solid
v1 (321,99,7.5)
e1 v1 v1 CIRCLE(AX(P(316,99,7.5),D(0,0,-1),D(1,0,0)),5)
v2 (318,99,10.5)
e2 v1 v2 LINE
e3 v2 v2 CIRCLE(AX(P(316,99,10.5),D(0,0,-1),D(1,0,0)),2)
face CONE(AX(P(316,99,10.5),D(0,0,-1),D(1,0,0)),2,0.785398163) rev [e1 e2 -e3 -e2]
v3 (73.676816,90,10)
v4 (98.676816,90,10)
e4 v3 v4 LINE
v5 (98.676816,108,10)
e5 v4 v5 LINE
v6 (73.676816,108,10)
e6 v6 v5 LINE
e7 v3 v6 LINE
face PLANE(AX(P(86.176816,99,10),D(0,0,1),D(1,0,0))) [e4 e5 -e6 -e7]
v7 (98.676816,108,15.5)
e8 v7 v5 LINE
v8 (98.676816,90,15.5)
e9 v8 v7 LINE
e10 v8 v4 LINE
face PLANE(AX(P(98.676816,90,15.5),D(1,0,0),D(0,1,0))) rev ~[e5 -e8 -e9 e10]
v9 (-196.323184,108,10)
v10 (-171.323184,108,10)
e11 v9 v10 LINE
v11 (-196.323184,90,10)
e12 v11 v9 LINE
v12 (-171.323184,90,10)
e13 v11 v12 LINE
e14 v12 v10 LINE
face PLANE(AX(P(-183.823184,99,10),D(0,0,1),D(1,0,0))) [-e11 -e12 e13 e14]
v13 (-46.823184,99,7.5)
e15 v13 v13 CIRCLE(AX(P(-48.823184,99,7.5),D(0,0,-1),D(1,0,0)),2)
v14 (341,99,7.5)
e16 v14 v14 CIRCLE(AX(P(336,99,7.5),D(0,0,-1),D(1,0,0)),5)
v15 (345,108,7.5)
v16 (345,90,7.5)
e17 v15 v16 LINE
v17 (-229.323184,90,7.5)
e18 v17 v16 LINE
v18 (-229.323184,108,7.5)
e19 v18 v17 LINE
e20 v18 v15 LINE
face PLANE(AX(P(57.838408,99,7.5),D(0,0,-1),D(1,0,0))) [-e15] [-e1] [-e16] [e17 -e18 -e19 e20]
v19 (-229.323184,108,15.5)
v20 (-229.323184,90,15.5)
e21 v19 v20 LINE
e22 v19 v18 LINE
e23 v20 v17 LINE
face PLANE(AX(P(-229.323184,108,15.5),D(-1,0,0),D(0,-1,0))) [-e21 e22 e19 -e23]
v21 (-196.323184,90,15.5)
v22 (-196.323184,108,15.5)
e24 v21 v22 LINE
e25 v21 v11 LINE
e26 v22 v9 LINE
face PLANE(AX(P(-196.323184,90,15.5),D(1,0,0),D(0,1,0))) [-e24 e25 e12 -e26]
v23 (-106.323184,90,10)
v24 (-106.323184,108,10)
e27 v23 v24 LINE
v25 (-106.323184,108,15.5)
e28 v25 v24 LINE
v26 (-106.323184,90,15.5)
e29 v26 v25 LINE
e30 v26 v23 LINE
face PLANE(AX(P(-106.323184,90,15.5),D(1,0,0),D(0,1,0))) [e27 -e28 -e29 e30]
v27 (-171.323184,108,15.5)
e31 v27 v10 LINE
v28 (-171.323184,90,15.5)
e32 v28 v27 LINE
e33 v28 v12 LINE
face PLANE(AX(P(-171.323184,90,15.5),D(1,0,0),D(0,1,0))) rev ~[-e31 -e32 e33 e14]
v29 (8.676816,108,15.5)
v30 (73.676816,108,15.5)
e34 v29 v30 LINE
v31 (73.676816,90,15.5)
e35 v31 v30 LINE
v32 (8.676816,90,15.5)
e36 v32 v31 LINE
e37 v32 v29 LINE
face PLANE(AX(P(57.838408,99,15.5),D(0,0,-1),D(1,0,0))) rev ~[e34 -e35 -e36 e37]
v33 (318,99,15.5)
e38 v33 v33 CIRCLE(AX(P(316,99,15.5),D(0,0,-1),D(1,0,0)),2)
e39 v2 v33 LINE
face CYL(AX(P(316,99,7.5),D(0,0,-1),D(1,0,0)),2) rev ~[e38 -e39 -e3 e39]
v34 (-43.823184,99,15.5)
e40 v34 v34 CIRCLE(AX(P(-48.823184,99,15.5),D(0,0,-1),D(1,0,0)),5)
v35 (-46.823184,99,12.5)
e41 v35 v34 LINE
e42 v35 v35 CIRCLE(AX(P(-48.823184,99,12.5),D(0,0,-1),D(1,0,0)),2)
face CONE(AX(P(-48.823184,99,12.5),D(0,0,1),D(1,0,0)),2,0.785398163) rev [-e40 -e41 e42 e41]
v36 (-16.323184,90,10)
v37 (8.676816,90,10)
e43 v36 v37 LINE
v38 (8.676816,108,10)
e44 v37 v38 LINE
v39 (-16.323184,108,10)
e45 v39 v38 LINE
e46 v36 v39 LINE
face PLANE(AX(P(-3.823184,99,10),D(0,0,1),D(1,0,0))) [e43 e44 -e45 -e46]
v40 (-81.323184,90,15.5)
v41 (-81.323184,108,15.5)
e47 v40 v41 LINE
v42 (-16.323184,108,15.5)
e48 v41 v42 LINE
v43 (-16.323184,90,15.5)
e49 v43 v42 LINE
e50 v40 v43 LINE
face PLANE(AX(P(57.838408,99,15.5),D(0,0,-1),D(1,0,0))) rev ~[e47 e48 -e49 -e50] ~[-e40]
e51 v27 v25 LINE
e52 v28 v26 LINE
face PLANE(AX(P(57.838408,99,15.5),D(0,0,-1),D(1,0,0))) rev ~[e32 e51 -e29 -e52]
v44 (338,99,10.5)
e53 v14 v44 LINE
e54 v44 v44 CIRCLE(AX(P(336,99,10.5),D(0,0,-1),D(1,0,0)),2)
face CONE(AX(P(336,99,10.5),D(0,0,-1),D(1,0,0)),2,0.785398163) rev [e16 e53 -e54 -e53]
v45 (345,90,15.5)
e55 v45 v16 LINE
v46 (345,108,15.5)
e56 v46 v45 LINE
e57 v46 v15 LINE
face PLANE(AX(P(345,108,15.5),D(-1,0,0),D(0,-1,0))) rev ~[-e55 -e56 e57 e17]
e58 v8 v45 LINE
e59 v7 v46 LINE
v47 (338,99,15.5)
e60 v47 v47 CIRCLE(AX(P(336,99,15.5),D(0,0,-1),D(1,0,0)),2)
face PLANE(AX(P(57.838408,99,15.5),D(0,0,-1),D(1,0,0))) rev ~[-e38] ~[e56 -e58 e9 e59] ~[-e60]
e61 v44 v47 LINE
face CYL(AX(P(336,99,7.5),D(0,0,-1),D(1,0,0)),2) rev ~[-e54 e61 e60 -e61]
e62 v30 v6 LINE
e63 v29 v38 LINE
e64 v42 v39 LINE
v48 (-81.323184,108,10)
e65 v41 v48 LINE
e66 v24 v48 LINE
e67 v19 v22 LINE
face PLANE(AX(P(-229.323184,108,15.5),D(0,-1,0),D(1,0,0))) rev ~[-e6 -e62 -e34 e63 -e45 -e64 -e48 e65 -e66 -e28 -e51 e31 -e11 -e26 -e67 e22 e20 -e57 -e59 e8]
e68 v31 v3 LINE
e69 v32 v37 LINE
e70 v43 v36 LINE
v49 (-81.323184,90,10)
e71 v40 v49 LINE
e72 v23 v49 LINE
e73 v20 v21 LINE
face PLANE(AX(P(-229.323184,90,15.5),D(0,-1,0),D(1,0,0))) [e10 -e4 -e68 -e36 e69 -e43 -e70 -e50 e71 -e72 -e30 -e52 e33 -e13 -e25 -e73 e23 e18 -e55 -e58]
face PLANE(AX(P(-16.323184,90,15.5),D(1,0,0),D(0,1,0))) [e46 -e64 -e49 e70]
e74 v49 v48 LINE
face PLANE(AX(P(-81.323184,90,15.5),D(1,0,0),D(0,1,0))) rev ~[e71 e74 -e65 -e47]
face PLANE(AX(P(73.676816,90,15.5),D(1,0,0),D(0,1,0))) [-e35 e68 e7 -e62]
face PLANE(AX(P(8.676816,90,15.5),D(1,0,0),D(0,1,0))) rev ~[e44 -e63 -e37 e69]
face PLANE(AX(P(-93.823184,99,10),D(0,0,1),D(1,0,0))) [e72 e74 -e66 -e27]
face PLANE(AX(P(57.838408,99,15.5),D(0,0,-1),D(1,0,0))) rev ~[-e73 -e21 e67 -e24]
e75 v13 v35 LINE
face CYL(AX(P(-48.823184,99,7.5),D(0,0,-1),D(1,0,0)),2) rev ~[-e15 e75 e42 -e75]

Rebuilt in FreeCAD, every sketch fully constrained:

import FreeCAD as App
import Part
import Sketcher

V = App.Vector


def edges_at(feature, points):
    """Names of the edges that pass closest to the given points."""
    edges = feature.Shape.Edges
    near = lambda p: min(range(len(edges)), key=lambda i: edges[i].distToShape(Part.Vertex(*p))[0])
    return sorted({f"Edge{near(p) + 1}" for p in points})


def add_polygon(sketch, points):
    """Adds a closed chain of lines whose ends are joined by coincident constraints."""
    first, n = sketch.GeometryCount, len(points)
    for a, b in zip(points, points[1:] + points[:1]):
        sketch.addGeometry(Part.LineSegment(App.Vector(*a, 0), App.Vector(*b, 0)), False)
    for i in range(n):
        sketch.addConstraint(Sketcher.Constraint("Coincident", first + i, 2, first + (i + 1) % n, 1))

doc = App.newDocument("Part")
params = doc.addObject("Spreadsheet::Sheet", "Params")
for row, (alias, value) in enumerate([
    ("sketch1_height", "18 mm"),
    ("pad1_length", "8 mm"),
    ("sketch2_diameter", "4 mm"),
    ("chamfer_size", "3 mm"),
    ("sketch3_width", "25 mm"),
    ("sketch3_height", "18 mm"),
    ("pocket2_length", "5.5 mm"),
    ("sketch4_diameter", "4 mm"),
    ("chamfer2_size", "3 mm"),
], start=1):
    params.set(f"A{row}", alias)
    params.set(f"B{row}", "=" + value)
    params.setAlias(f"B{row}", alias)

body = doc.addObject("PartDesign::Body", "Body")

sketch1 = body.newObject("Sketcher::SketchObject", "Sketch")
sketch1.AttachmentSupport = (doc.getObject("XY_Plane"), [""])
sketch1.MapMode = "FlatFace"
add_polygon(sketch1, [(-229, -90), (-229, -108), (345, -108), (345, -90)])
sketch1.addConstraint(Sketcher.Constraint("Vertical", 0))
sketch1.addConstraint(Sketcher.Constraint("Horizontal", 1))
sketch1.addConstraint(Sketcher.Constraint("Vertical", 2))
sketch1.addConstraint(Sketcher.Constraint("Horizontal", 3))
sketch1.addConstraint(Sketcher.Constraint("DistanceY", 0, 2, 0, 1, 18.0))
sketch1.addConstraint(Sketcher.Constraint("DistanceY", 0, 2, -1, 1, 108.0))
sketch1.addConstraint(Sketcher.Constraint("DistanceX", -1, 1, 1, 2, 345.0))
sketch1.addConstraint(Sketcher.Constraint("DistanceX", 1, 1, 1, 2, 574.323184))
sketch1.setExpression("Constraints[8]", "Params.sketch1_height")
pad1 = body.newObject("PartDesign::Pad", "Pad")
pad1.Profile = sketch1
pad1.setExpression("Length", "Params.pad1_length")

sketch2 = body.newObject("Sketcher::SketchObject", "Sketch001")
sketch2.AttachmentSupport = (doc.getObject("XY_Plane"), [""])
sketch2.MapMode = "FlatFace"
sketch2.AttachmentOffset = App.Placement(V(0, 0, 8), App.Rotation())
sketch2.addGeometry(Part.Circle(V(316, -99, 0), V(0, 0, 1), 2), False)
sketch2.addGeometry(Part.Circle(V(336, -99, 0), V(0, 0, 1), 2), False)
sketch2.addConstraint(Sketcher.Constraint("Equal", 0, 1))
sketch2.addConstraint(Sketcher.Constraint("Horizontal", 0, 3, 1, 3))
sketch2.addConstraint(Sketcher.Constraint("Diameter", 0, 4.0))
sketch2.addConstraint(Sketcher.Constraint("DistanceX", -1, 1, 0, 3, 316.0))
sketch2.addConstraint(Sketcher.Constraint("DistanceY", 0, 3, -1, 1, 99.0))
sketch2.addConstraint(Sketcher.Constraint("DistanceX", -1, 1, 1, 3, 336.0))
sketch2.setExpression("Constraints[2]", "Params.sketch2_diameter")
pocket1 = body.newObject("PartDesign::Pocket", "Pocket")
pocket1.Profile = sketch2
pocket1.Type = "ThroughAll"
doc.recompute()

chamfer = body.newObject("PartDesign::Chamfer", "Chamfer")
chamfer.Base = (pocket1, edges_at(pocket1, [(334, -99, 8), (314, -99, 8)]))
chamfer.setExpression("Size", "Params.chamfer_size")

sketch3 = body.newObject("Sketcher::SketchObject", "Sketch002")
sketch3.AttachmentSupport = (doc.getObject("XY_Plane"), [""])
sketch3.MapMode = "FlatFace"
add_polygon(sketch3, [(-196, -108), (-196, -90), (-171, -90), (-171, -108)])
add_polygon(sketch3, [(-106, -108), (-106, -90), (-81, -90), (-81, -108)])
add_polygon(sketch3, [(-16, -108), (-16, -90), (9, -90), (9, -108)])
add_polygon(sketch3, [(74, -108), (74, -90), (99, -90), (99, -108)])
sketch3.addConstraint(Sketcher.Constraint("Vertical", 0))
sketch3.addConstraint(Sketcher.Constraint("Horizontal", 1))
sketch3.addConstraint(Sketcher.Constraint("Vertical", 2))
sketch3.addConstraint(Sketcher.Constraint("Horizontal", 3))
sketch3.addConstraint(Sketcher.Constraint("Vertical", 4))
sketch3.addConstraint(Sketcher.Constraint("Horizontal", 5))
sketch3.addConstraint(Sketcher.Constraint("Vertical", 6))
sketch3.addConstraint(Sketcher.Constraint("Horizontal", 7))
sketch3.addConstraint(Sketcher.Constraint("Vertical", 8))
sketch3.addConstraint(Sketcher.Constraint("Horizontal", 9))
sketch3.addConstraint(Sketcher.Constraint("Vertical", 10))
sketch3.addConstraint(Sketcher.Constraint("Horizontal", 11))
sketch3.addConstraint(Sketcher.Constraint("Vertical", 12))
sketch3.addConstraint(Sketcher.Constraint("Horizontal", 13))
sketch3.addConstraint(Sketcher.Constraint("Vertical", 14))
sketch3.addConstraint(Sketcher.Constraint("Horizontal", 15))
sketch3.addConstraint(Sketcher.Constraint("Horizontal", 1, 2, 4, 2))
sketch3.addConstraint(Sketcher.Constraint("Horizontal", 3, 2, 6, 2))
sketch3.addConstraint(Sketcher.Constraint("Horizontal", 5, 2, 8, 2))
sketch3.addConstraint(Sketcher.Constraint("Horizontal", 7, 2, 10, 2))
sketch3.addConstraint(Sketcher.Constraint("Horizontal", 9, 2, 12, 2))
sketch3.addConstraint(Sketcher.Constraint("Horizontal", 11, 2, 14, 2))
sketch3.addConstraint(Sketcher.Constraint("Equal", 3, 5))
sketch3.addConstraint(Sketcher.Constraint("Equal", 7, 9))
sketch3.addConstraint(Sketcher.Constraint("Equal", 11, 13))
sketch3.addConstraint(Sketcher.Constraint("DistanceX", 1, 1, 1, 2, 25.0))
sketch3.addConstraint(Sketcher.Constraint("DistanceY", 0, 1, 0, 2, 18.0))
sketch3.addConstraint(Sketcher.Constraint("DistanceY", 0, 2, -1, 1, 90.0))
sketch3.addConstraint(Sketcher.Constraint("DistanceX", 1, 2, 4, 2, 65.0))
sketch3.addConstraint(Sketcher.Constraint("DistanceX", 5, 2, 8, 2, 65.0))
sketch3.addConstraint(Sketcher.Constraint("DistanceX", 9, 2, 12, 2, 65.0))
sketch3.addConstraint(Sketcher.Constraint("DistanceX", 0, 2, -1, 1, 196.323184))
sketch3.setExpression("Constraints[41]", "Params.sketch3_width")
sketch3.setExpression("Constraints[42]", "Params.sketch3_height")
pocket2 = body.newObject("PartDesign::Pocket", "Pocket001")
pocket2.Profile = sketch3
pocket2.setExpression("Length", "Params.pocket2_length")
pocket2.Reversed = True

sketch4 = body.newObject("Sketcher::SketchObject", "Sketch003")
sketch4.AttachmentSupport = (doc.getObject("XY_Plane"), [""])
sketch4.MapMode = "FlatFace"
sketch4.AttachmentOffset = App.Placement(V(0, 0, 8), App.Rotation())
sketch4.addGeometry(Part.Circle(V(-48.8, -99, 0), V(0, 0, 1), 2), False)
sketch4.addConstraint(Sketcher.Constraint("Diameter", 0, 4.0))
sketch4.addConstraint(Sketcher.Constraint("DistanceY", 0, 3, -1, 1, 99.0))
sketch4.addConstraint(Sketcher.Constraint("DistanceX", 0, 3, -1, 1, 48.823184))
sketch4.setExpression("Constraints[0]", "Params.sketch4_diameter")
pocket3 = body.newObject("PartDesign::Pocket", "Pocket002")
pocket3.Profile = sketch4
pocket3.Type = "ThroughAll"
doc.recompute()

chamfer2 = body.newObject("PartDesign::Chamfer", "Chamfer001")
chamfer2.Base = (pocket3, edges_at(pocket3, [(-50.823, -99, 0)]))
chamfer2.setExpression("Size", "Params.chamfer2_size")
body2 = doc.addObject("PartDesign::Body", "Body001")
doc.recompute()

body.Placement = App.Placement(V(0, 0, 15.5), App.Rotation(V(1, 0, 0), 180))
boolean = body2.newObject("PartDesign::Boolean", "Boolean")
boolean.Type = "Fuse"
boolean.addObjects([body])

doc.recompute()
